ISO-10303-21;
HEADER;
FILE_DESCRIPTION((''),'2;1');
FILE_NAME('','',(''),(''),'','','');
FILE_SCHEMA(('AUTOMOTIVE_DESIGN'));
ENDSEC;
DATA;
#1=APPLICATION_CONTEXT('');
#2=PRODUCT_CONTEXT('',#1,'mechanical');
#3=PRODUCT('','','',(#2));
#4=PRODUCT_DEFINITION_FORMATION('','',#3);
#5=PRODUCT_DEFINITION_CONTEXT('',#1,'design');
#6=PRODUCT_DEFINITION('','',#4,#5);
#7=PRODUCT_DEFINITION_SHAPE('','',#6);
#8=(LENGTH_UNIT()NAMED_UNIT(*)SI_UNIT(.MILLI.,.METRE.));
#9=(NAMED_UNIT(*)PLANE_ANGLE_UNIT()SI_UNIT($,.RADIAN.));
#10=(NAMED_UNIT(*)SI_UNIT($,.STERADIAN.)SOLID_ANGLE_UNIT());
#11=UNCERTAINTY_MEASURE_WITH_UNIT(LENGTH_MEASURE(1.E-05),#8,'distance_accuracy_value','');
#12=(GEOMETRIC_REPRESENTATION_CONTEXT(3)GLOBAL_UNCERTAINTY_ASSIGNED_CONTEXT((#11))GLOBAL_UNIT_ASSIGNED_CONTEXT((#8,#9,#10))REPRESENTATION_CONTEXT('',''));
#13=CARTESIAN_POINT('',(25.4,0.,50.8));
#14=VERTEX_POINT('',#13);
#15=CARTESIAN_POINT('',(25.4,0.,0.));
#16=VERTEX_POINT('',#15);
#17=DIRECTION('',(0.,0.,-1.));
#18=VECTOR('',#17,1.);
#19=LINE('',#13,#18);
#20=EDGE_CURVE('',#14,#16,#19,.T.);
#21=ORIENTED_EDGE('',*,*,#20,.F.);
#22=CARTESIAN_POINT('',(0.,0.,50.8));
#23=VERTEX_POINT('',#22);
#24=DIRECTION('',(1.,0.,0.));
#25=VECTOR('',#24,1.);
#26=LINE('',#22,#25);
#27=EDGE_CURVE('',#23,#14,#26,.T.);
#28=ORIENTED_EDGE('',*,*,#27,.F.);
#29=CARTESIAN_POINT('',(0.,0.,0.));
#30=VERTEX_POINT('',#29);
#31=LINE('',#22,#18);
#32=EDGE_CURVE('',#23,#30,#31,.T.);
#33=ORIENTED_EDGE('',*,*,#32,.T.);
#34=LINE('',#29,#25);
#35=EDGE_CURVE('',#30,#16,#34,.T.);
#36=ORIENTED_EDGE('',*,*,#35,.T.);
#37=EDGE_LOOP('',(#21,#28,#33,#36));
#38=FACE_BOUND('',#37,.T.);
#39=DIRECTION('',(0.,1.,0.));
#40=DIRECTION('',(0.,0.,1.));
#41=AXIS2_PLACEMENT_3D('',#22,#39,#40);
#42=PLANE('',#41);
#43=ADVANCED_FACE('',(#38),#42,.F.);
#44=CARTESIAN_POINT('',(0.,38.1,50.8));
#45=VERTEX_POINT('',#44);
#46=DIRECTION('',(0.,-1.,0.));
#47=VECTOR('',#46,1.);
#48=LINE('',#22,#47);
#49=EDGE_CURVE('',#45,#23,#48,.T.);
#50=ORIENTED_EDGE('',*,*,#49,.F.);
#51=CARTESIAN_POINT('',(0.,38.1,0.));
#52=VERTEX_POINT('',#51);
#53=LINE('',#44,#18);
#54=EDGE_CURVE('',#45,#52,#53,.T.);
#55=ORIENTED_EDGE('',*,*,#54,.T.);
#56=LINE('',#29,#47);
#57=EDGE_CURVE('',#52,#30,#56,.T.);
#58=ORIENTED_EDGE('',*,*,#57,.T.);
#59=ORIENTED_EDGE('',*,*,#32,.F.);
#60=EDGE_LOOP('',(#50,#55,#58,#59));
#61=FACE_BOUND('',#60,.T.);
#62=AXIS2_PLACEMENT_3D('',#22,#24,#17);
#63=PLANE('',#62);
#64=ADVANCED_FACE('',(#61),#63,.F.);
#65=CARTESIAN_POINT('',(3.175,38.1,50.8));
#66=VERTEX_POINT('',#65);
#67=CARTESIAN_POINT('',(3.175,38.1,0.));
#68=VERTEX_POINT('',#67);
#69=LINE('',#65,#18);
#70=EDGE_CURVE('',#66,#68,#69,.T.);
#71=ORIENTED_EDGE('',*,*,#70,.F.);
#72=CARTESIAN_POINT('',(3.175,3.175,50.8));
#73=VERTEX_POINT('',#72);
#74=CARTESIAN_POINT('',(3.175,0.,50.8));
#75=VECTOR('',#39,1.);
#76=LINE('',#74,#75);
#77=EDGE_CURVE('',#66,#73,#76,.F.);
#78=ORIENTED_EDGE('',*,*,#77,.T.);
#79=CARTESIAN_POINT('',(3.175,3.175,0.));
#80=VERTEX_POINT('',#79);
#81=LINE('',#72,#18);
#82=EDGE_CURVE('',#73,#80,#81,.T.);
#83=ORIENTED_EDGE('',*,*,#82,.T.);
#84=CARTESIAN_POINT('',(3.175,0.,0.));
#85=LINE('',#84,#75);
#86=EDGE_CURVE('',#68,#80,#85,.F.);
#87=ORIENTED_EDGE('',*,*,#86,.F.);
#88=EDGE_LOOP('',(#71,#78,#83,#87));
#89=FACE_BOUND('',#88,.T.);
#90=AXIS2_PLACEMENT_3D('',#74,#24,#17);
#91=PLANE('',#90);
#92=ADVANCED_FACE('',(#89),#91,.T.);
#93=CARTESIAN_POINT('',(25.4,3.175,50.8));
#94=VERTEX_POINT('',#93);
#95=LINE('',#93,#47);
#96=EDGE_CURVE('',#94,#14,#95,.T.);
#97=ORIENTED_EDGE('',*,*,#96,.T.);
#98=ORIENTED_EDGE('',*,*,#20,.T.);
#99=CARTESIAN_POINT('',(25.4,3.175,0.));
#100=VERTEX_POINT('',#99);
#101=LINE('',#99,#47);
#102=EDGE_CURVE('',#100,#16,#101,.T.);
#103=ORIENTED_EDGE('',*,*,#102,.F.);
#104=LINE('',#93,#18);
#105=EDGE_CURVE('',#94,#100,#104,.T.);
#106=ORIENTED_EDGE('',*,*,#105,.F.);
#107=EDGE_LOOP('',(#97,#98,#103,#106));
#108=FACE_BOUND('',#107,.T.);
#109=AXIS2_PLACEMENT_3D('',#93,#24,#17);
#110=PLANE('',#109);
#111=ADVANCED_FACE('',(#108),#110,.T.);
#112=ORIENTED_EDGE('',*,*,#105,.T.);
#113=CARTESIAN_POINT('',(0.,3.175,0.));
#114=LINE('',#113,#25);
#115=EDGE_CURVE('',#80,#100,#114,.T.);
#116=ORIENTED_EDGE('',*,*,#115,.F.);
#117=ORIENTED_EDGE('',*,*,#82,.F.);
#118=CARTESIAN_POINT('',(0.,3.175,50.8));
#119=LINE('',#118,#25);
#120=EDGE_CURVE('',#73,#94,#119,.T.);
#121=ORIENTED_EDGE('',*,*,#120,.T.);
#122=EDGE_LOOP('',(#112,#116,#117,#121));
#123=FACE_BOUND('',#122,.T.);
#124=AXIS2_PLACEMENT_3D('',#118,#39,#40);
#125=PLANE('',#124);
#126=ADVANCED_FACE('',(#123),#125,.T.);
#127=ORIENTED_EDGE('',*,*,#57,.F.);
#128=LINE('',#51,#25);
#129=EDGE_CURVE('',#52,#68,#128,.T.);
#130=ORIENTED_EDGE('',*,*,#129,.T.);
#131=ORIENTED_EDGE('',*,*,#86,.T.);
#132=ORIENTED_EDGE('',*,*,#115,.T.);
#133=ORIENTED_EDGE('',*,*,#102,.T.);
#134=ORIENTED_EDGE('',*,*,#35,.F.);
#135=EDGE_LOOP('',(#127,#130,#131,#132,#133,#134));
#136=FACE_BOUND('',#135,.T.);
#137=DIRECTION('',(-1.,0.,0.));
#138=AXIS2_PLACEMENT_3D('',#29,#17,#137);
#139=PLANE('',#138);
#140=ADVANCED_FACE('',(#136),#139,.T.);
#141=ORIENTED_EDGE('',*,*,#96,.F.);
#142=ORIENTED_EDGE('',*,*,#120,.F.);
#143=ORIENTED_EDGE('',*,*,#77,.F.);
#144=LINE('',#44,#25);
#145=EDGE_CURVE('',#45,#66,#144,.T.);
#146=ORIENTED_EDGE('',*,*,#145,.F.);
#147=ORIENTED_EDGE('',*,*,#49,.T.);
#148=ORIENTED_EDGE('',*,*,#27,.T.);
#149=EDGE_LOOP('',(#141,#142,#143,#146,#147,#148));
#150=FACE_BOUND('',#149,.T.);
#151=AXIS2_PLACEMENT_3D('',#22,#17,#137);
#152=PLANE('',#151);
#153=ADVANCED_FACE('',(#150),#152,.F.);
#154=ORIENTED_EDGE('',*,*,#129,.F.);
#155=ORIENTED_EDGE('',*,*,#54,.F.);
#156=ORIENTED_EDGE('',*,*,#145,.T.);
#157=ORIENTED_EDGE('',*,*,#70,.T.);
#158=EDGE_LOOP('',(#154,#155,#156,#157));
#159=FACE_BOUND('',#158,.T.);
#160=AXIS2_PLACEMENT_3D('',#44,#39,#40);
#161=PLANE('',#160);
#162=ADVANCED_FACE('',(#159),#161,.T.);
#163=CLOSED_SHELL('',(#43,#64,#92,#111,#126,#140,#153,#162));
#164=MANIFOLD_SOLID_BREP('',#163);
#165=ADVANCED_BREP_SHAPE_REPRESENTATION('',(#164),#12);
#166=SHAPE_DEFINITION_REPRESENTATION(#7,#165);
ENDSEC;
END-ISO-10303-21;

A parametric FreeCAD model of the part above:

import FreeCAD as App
import Part
import Sketcher

V = App.Vector
Q = App.Units.Quantity


def add_polygon(sketch, points):
    """Adds a closed chain of lines whose ends are joined by coincident constraints."""
    first, n = sketch.GeometryCount, len(points)
    for a, b in zip(points, points[1:] + points[:1]):
        sketch.addGeometry(Part.LineSegment(App.Vector(*a, 0), App.Vector(*b, 0)), False)
    for i in range(n):
        sketch.addConstraint(Sketcher.Constraint("Coincident", first + i, 2, first + (i + 1) % n, 1))

doc = App.newDocument("Part")
body = doc.addObject("PartDesign::Body", "Body")

# Sketch on XY plane
sketch1 = doc.addObject("Sketcher::SketchObject", "Sketch")
body.addObject(sketch1)
sketch1.AttachmentSupport = (doc.XY_Plane, [""])
sketch1.MapMode = "FlatFace"
add_polygon(sketch1, [(0, 0), (25.4, 0), (25.4, 3.175), (3.175, 3.175), (3.175, 38.1), (0, 38.1)])  # lines 0-5
sketch1.addConstraint(Sketcher.Constraint("Horizontal", 0))
sketch1.addConstraint(Sketcher.Constraint("Vertical", 1))
sketch1.addConstraint(Sketcher.Constraint("Horizontal", 2))
sketch1.addConstraint(Sketcher.Constraint("Vertical", 3))
sketch1.addConstraint(Sketcher.Constraint("Horizontal", 4))
sketch1.addConstraint(Sketcher.Constraint("Vertical", 5))
sketch1.addConstraint(Sketcher.Constraint("Coincident", 5, 2, -1, 1))
sketch1.addConstraint(Sketcher.Constraint("Equal", 4, 1))
sketch1.addConstraint(Sketcher.Constraint("DistanceX", 0, 1, 0, 2, Q("1 in")))
sketch1.addConstraint(Sketcher.Constraint("DistanceY", 5, 2, 5, 1, Q("1.5 in")))
sketch1.addConstraint(Sketcher.Constraint("DistanceX", 2, 2, 2, 1, Q("0.875 in")))
pad1 = doc.addObject("PartDesign::Pad", "Pad")
body.addObject(pad1)
pad1.Profile = sketch1
pad1.Length = Q("2 in")

doc.recompute()
